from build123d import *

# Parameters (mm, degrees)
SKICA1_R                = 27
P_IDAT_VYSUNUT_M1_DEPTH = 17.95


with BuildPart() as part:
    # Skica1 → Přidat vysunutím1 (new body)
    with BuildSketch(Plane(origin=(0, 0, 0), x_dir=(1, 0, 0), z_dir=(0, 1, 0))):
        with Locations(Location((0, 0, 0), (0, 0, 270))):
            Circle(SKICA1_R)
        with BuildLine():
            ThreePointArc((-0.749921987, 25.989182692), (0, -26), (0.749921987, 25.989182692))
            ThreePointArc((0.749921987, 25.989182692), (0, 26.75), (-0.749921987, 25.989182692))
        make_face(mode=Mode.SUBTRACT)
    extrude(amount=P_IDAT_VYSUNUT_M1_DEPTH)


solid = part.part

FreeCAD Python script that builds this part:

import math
import FreeCAD as App
import Part
import Sketcher
Q = App.Units.Quantity

doc = App.newDocument("Part")
params = doc.addObject("Spreadsheet::Sheet", "Params")
for row, (alias, value) in enumerate([
    ("sketch1_diameter", "54 mm"),
    ("sketch1_radius", "26 mm"),
    ("sketch1_radius2", "0.75 mm"),
    ("pad1_length", "17.95 mm"),
], start=1):
    params.set(f"A{row}", alias)
    params.set(f"B{row}", "=" + value)
    params.setAlias(f"B{row}", alias)

body = doc.addObject("PartDesign::Body", "Body")

# Sketch on XZ plane
sketch1 = doc.addObject("Sketcher::SketchObject", "Sketch")
body.addObject(sketch1)
sketch1.AttachmentSupport = (doc.XZ_Plane, [""])
sketch1.MapMode = "FlatFace"
sketch1.addGeometry([
    Part.Circle(App.Vector(0, 0, 0), App.Vector(0, 0, 1), 27),
    Part.ArcOfCircle(Part.Circle(App.Vector(0, 0, 0), App.Vector(0, 0, 1), 26), math.radians(-88), math.radians(268)),
    Part.ArcOfCircle(Part.Circle(App.Vector(0, -26, 0), App.Vector(0, 0, 1), 0.8), math.radians(179), math.radians(361)),
], False)
sketch1.addConstraint([
    Sketcher.Constraint("Coincident", 1, 1, 2, 2),
    Sketcher.Constraint("Coincident", 2, 1, 1, 2),
    Sketcher.Constraint("Coincident", 0, 3, -1, 1),
    Sketcher.Constraint("Coincident", 1, 3, -1, 1),
    Sketcher.Constraint("PointOnObject", 2, 3, -2),
    Sketcher.Constraint("Diameter", 0, Q("54 mm")),
    Sketcher.Constraint("Radius", 1, Q("26 mm")),
    Sketcher.Constraint("Radius", 2, Q("0.75 mm")),
    Sketcher.Constraint("DistanceY", 2, 3, -1, 1, Q("26 mm")),
])
sketch1.setExpression("Constraints[5]", "Params.sketch1_diameter")
sketch1.setExpression("Constraints[6]", "Params.sketch1_radius")
sketch1.setExpression("Constraints[7]", "Params.sketch1_radius2")
pad1 = doc.addObject("PartDesign::Pad", "Pad")
body.addObject(pad1)
pad1.Profile = sketch1
pad1.setExpression("Length", "Params.pad1_length")
pad1.Reversed = True

doc.recompute()
